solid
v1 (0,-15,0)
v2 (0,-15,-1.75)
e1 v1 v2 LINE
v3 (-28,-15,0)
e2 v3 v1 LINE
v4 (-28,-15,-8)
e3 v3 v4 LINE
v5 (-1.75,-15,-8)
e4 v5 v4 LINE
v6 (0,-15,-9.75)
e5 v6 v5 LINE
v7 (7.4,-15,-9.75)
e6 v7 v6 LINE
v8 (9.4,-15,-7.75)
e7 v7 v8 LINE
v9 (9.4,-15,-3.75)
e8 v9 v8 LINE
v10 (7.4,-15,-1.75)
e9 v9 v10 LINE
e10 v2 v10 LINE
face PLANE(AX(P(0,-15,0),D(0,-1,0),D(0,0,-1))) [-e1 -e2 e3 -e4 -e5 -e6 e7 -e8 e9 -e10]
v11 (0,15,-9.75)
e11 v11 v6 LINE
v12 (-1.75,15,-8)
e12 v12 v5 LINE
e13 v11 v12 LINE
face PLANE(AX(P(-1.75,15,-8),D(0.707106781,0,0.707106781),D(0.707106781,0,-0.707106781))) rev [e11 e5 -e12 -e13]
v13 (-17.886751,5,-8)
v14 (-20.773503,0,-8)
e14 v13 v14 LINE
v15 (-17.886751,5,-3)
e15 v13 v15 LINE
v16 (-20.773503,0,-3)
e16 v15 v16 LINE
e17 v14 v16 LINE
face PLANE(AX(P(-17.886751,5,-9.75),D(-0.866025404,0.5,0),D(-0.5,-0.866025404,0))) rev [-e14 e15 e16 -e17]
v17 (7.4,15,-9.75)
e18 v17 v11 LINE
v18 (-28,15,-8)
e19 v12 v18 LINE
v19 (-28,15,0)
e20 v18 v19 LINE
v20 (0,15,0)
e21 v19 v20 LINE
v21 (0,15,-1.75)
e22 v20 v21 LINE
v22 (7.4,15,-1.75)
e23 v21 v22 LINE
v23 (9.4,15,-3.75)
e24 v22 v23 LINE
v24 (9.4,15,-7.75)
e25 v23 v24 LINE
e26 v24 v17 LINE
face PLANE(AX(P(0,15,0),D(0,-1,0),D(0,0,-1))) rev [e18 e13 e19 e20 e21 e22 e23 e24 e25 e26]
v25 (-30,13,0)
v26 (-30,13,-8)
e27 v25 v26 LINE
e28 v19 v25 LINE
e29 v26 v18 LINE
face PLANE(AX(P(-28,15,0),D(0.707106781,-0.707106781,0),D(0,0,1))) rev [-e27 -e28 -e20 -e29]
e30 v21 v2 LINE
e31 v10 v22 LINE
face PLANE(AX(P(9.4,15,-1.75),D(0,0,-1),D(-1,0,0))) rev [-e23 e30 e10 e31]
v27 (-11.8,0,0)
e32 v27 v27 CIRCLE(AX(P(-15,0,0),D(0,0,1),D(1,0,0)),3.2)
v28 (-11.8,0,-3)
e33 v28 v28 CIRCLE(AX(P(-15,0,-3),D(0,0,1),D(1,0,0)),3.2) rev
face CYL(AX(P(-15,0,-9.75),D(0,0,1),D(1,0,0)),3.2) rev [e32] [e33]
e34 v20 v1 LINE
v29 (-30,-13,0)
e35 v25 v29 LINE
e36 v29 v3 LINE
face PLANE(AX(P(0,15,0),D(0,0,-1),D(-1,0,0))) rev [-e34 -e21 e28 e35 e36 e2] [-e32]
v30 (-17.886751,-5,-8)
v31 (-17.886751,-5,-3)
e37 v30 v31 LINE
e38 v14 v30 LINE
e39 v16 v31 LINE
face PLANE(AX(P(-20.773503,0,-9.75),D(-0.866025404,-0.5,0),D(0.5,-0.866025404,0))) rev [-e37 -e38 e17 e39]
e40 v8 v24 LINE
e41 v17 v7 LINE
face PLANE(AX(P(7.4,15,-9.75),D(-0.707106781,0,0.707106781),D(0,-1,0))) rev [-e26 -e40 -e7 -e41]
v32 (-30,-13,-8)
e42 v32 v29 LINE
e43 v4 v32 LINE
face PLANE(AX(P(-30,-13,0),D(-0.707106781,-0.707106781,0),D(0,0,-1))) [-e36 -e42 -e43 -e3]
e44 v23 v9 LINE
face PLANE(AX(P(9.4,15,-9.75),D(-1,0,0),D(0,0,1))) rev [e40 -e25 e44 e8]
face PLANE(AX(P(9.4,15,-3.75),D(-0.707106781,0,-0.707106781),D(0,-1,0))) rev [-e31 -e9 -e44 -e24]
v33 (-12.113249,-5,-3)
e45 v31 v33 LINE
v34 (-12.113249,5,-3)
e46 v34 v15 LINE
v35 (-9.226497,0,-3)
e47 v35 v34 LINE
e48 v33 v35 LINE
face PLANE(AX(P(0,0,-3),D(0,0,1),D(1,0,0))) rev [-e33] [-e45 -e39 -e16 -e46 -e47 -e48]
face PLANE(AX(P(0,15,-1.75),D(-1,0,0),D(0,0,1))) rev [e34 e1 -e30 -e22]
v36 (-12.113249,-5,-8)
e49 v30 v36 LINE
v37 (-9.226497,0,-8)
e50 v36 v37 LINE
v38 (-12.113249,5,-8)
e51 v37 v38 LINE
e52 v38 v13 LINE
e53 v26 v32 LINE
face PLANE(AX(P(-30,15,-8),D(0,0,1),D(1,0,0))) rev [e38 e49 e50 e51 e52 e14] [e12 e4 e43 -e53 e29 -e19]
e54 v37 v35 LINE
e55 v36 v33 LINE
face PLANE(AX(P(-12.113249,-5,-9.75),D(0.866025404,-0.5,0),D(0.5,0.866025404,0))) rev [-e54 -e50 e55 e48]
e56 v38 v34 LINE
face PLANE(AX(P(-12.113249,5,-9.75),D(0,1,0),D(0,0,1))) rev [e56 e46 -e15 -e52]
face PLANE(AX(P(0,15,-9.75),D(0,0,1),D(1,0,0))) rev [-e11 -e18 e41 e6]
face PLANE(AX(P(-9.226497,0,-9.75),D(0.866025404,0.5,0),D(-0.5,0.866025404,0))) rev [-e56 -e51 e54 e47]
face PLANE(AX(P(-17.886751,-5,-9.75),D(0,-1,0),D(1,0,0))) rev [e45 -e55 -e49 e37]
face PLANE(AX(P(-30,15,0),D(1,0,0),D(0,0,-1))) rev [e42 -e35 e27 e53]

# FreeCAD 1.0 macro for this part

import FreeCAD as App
import Part
import Sketcher

V = App.Vector
Q = App.Units.Quantity


def edges_at(feature, points):
    """Names of the edges that pass closest to the given points."""
    edges = feature.Shape.Edges
    near = lambda p: min(range(len(edges)), key=lambda i: edges[i].distToShape(Part.Vertex(*p))[0])
    return sorted({f"Edge{near(p) + 1}" for p in points})

doc = App.newDocument("Part")
body = doc.addObject("PartDesign::Body", "Body")

# Sketch on XZ plane
sketch1 = doc.addObject("Sketcher::SketchObject", "Sketch")
body.addObject(sketch1)
sketch1.AttachmentSupport = (doc.XZ_Plane, [""])
sketch1.MapMode = "FlatFace"
sketch1.addGeometry(Part.LineSegment(V(-30, 0, 0), V(0, 0, 0)), False)
sketch1.addGeometry(Part.LineSegment(V(0, 0, 0), V(0, -1.75, 0)), False)
sketch1.addGeometry(Part.LineSegment(V(0, -1.75, 0), V(9.4, -1.75, 0)), False)
sketch1.addGeometry(Part.LineSegment(V(9.4, -1.75, 0), V(9.4, -9.75, 0)), False)
sketch1.addGeometry(Part.LineSegment(V(9.4, -9.75, 0), V(0, -9.75, 0)), False)
sketch1.addGeometry(Part.LineSegment(V(0, -9.75, 0), V(-1.75, -8, 0)), False)
sketch1.addGeometry(Part.LineSegment(V(-1.75, -8, 0), V(-30, -8, 0)), False)
sketch1.addGeometry(Part.LineSegment(V(-30, -8, 0), V(-30, 0, 0)), False)
sketch1.addConstraint(Sketcher.Constraint("Coincident", 0, 2, 1, 1))
sketch1.addConstraint(Sketcher.Constraint("Coincident", 1, 2, 2, 1))
sketch1.addConstraint(Sketcher.Constraint("Coincident", 2, 2, 3, 1))
sketch1.addConstraint(Sketcher.Constraint("Coincident", 3, 2, 4, 1))
sketch1.addConstraint(Sketcher.Constraint("Coincident", 4, 2, 5, 1))
sketch1.addConstraint(Sketcher.Constraint("Coincident", 5, 2, 6, 1))
sketch1.addConstraint(Sketcher.Constraint("Coincident", 6, 2, 7, 1))
sketch1.addConstraint(Sketcher.Constraint("Coincident", 7, 2, 0, 1))
sketch1.addConstraint(Sketcher.Constraint("Horizontal", 0))
sketch1.addConstraint(Sketcher.Constraint("Vertical", 1))
sketch1.addConstraint(Sketcher.Constraint("Horizontal", 2))
sketch1.addConstraint(Sketcher.Constraint("Vertical", 3))
sketch1.addConstraint(Sketcher.Constraint("Horizontal", 4))
sketch1.addConstraint(Sketcher.Constraint("Horizontal", 6))
sketch1.addConstraint(Sketcher.Constraint("Vertical", 7))
sketch1.addConstraint(Sketcher.Constraint("Coincident", 0, 2, -1, 1))
sketch1.addConstraint(Sketcher.Constraint("PointOnObject", 4, 2, -2))
sketch1.addConstraint(Sketcher.Constraint("Equal", 3, 7))
sketch1.addConstraint(Sketcher.Constraint("DistanceX", 0, 1, 0, 2, 30.0))
sketch1.addConstraint(Sketcher.Constraint("DistanceY", 3, 2, 3, 1, 8.0))
sketch1.addConstraint(Sketcher.Constraint("Angle", 5, Q("135 deg")))
sketch1.addConstraint(Sketcher.Constraint("DistanceX", 2, 1, 2, 2, 9.4))
sketch1.addConstraint(Sketcher.Constraint("DistanceX", 6, 2, 6, 1, 28.25))
pad1 = doc.addObject("PartDesign::Pad", "Pad")
body.addObject(pad1)
pad1.Profile = sketch1
pad1.Length = 30
pad1.Midplane = True

# Sketch on XY plane
sketch2 = doc.addObject("Sketcher::SketchObject", "Sketch001")
body.addObject(sketch2)
sketch2.AttachmentSupport = (doc.XY_Plane, [""])
sketch2.MapMode = "FlatFace"
sketch2.addGeometry(Part.Circle(V(-15, 0, 0), V(0, 0, 1), 3.2), False)
sketch2.addConstraint(Sketcher.Constraint("PointOnObject", 0, 3, -1))
sketch2.addConstraint(Sketcher.Constraint("Diameter", 0, 6.4))
sketch2.addConstraint(Sketcher.Constraint("DistanceX", 0, 3, -1, 1, 15.0))
pocket1 = doc.addObject("PartDesign::Pocket", "Pocket")
body.addObject(pocket1)
pocket1.Profile = sketch2
pocket1.Type = "ThroughAll"

# Sketch on XY plane
sketch3 = doc.addObject("Sketcher::SketchObject", "Sketch002")
body.addObject(sketch3)
sketch3.AttachmentSupport = (doc.XY_Plane, [""])
sketch3.MapMode = "FlatFace"
sketch3.AttachmentOffset = App.Placement(V(0, 0, -3), App.Rotation())
sketch3.addGeometry(Part.LineSegment(V(-9.226497, 0, 0), V(-12.113249, 5, 0)), False)
sketch3.addGeometry(Part.LineSegment(V(-12.113249, 5, 0), V(-17.886751, 5, 0)), False)
sketch3.addGeometry(Part.LineSegment(V(-17.886751, 5, 0), V(-20.773503, 0, 0)), False)
sketch3.addGeometry(Part.LineSegment(V(-20.773503, 0, 0), V(-17.886751, -5, 0)), False)
sketch3.addGeometry(Part.LineSegment(V(-17.886751, -5, 0), V(-12.113249, -5, 0)), False)
sketch3.addGeometry(Part.LineSegment(V(-12.113249, -5, 0), V(-9.226497, 0, 0)), False)
sketch3.addConstraint(Sketcher.Constraint("Coincident", 0, 2, 1, 1))
sketch3.addConstraint(Sketcher.Constraint("Coincident", 1, 2, 2, 1))
sketch3.addConstraint(Sketcher.Constraint("Coincident", 2, 2, 3, 1))
sketch3.addConstraint(Sketcher.Constraint("Coincident", 3, 2, 4, 1))
sketch3.addConstraint(Sketcher.Constraint("Coincident", 4, 2, 5, 1))
sketch3.addConstraint(Sketcher.Constraint("Coincident", 5, 2, 0, 1))
sketch3.addConstraint(Sketcher.Constraint("Horizontal", 1))
sketch3.addConstraint(Sketcher.Constraint("Horizontal", 4))
sketch3.addConstraint(Sketcher.Constraint("Symmetric", 1, 2, 3, 2, -1))
sketch3.addConstraint(Sketcher.Constraint("PointOnObject", 2, 2, -1))
sketch3.addConstraint(Sketcher.Constraint("PointOnObject", 5, 2, -1))
sketch3.addConstraint(Sketcher.Constraint("Parallel", 0, 3))
sketch3.addConstraint(Sketcher.Constraint("Parallel", 2, 5))
sketch3.addConstraint(Sketcher.Constraint("Angle", 0, Q("120 deg")))
sketch3.addConstraint(Sketcher.Constraint("DistanceY", -1, 1, 0, 2, 5.0))
sketch3.addConstraint(Sketcher.Constraint("DistanceX", 1, 2, 1, 1, 5.773503))
sketch3.addConstraint(Sketcher.Constraint("DistanceX", 0, 2, -1, 1, 12.113249))
pocket2 = doc.addObject("PartDesign::Pocket", "Pocket001")
body.addObject(pocket2)
pocket2.Profile = sketch3
pocket2.Type = "ThroughAll"
doc.recompute()

chamfer = doc.addObject("PartDesign::Chamfer", "Chamfer")
body.addObject(chamfer)
chamfer.Base = (pocket2, edges_at(pocket2, [
    (9.4, 0, -9.75),
    (9.4, 0, -1.75),
    (-30, 15, -4),
    (-30, -15, -4),
]))
chamfer.Size = 2

doc.recompute()
